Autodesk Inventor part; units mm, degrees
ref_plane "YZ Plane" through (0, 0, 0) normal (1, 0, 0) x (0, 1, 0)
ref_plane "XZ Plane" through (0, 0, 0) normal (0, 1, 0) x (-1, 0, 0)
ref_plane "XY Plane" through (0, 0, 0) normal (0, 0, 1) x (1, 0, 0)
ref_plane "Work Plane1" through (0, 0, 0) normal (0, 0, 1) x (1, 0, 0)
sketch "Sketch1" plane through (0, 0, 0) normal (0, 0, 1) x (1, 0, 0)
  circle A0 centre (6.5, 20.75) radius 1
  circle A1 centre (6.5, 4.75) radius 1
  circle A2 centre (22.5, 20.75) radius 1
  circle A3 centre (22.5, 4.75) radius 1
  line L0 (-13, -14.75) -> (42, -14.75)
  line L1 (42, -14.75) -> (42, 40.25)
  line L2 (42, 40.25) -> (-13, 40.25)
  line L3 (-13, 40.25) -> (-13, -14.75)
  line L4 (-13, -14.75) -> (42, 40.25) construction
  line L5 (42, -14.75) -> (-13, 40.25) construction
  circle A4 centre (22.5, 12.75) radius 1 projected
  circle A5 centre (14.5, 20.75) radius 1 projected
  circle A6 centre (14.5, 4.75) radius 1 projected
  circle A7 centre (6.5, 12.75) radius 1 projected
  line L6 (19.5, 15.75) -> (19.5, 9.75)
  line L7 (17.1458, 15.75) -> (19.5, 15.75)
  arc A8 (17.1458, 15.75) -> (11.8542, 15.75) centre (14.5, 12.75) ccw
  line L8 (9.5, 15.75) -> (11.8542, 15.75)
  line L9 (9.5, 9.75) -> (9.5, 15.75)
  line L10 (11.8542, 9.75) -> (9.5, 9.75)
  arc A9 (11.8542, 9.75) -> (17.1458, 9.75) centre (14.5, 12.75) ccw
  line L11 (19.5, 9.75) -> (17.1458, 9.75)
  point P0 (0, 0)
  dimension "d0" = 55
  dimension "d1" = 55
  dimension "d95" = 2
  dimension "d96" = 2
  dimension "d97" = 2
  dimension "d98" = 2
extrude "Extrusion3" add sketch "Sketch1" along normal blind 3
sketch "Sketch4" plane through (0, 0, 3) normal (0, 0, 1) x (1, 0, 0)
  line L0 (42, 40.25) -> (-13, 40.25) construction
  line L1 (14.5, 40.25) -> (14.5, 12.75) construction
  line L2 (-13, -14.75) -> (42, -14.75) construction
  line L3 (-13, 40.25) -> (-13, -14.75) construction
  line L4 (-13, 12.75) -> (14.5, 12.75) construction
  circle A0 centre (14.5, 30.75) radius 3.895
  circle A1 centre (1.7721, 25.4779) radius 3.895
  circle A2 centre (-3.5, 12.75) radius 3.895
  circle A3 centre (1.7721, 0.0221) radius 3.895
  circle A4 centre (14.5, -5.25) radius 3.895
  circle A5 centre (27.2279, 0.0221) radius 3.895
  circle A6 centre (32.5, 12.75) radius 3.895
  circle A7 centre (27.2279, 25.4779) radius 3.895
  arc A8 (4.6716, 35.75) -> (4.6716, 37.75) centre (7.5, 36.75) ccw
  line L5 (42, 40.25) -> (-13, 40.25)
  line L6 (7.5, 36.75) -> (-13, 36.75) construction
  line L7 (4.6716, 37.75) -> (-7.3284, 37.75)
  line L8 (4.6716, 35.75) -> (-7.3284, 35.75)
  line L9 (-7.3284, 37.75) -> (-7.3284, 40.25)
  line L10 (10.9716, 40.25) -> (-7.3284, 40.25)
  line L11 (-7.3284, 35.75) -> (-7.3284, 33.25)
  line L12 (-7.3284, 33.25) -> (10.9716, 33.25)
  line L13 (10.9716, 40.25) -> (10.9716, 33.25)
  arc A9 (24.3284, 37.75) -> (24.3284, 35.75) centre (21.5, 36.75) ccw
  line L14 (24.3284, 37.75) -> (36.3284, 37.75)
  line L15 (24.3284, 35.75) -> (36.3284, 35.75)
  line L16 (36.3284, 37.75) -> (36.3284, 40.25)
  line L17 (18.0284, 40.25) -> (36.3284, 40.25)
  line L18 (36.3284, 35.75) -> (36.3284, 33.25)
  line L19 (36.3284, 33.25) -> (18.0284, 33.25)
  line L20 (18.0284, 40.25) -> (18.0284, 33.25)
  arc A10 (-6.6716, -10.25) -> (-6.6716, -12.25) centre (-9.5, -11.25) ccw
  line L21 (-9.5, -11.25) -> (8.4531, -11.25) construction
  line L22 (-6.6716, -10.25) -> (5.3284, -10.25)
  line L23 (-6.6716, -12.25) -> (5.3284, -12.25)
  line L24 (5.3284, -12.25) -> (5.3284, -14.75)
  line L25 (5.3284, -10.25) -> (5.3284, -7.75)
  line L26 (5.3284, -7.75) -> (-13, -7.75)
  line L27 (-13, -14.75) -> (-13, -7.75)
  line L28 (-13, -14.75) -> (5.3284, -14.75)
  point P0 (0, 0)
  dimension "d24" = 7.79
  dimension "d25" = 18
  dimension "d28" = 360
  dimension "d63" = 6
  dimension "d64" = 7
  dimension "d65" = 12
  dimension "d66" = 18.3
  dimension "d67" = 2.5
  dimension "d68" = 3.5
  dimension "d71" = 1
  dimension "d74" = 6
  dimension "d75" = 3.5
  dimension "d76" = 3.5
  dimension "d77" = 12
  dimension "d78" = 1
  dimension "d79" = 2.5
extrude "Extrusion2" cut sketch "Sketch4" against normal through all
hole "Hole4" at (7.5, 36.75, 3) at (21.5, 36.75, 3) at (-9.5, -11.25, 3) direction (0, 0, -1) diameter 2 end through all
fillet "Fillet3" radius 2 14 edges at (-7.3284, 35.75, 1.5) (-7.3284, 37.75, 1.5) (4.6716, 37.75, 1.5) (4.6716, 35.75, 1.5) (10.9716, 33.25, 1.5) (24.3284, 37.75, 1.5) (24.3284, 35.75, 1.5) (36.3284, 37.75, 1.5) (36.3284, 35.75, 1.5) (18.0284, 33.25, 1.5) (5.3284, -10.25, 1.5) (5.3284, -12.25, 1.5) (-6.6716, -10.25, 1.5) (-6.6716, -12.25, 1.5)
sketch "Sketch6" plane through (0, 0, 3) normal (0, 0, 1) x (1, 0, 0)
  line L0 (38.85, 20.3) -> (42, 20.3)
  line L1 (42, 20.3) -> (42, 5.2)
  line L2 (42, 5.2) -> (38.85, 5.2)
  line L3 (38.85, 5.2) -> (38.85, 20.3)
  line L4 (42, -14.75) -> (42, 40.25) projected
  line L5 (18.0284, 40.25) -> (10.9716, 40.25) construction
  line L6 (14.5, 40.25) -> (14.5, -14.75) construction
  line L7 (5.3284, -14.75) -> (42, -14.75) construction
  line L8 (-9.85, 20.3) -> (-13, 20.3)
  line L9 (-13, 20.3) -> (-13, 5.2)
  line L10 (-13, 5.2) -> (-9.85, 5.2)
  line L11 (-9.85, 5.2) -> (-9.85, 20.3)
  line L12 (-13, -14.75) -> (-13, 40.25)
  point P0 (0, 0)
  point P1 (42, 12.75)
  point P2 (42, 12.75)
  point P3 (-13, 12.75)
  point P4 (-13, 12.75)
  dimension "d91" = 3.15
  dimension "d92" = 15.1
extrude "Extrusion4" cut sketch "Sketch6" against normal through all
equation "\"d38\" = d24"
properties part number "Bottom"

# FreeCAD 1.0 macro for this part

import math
import FreeCAD as App
import Part
import Sketcher

V = App.Vector


def edges_at(feature, points):
    """Names of the edges that pass closest to the given points."""
    edges = feature.Shape.Edges
    near = lambda p: min(range(len(edges)), key=lambda i: edges[i].distToShape(Part.Vertex(*p))[0])
    return sorted({f"Edge{near(p) + 1}" for p in points})

doc = App.newDocument("Part")
body = doc.addObject("PartDesign::Body", "Body")

sketch1 = body.newObject("Sketcher::SketchObject", "Sketch")
sketch1.AttachmentSupport = (doc.getObject("XY_Plane"), [""])
sketch1.MapMode = "FlatFace"
sketch1.addGeometry([
    Part.LineSegment(V(-13, 40.2, 0), V(-13, -14.8, 0)),
    Part.LineSegment(V(-13, -14.8, 0), V(42, -14.8, 0)),
    Part.LineSegment(V(42, -14.8, 0), V(42, 40.2, 0)),
    Part.LineSegment(V(42, 40.2, 0), V(-13, 40.2, 0)),
    Part.Circle(V(6.5, 4.8, 0), V(0, 0, 1), 1),
    Part.Circle(V(14.5, 4.8, 0), V(0, 0, 1), 1),
    Part.Circle(V(22.5, 4.8, 0), V(0, 0, 1), 1),
    Part.Circle(V(6.5, 12.8, 0), V(0, 0, 1), 1),
    Part.Circle(V(6.5, 20.8, 0), V(0, 0, 1), 1),
    Part.LineSegment(V(17.1, 15.8, 0), V(19.5, 15.8, 0)),
    Part.LineSegment(V(19.5, 15.8, 0), V(19.5, 9.8, 0)),
    Part.LineSegment(V(19.5, 9.8, 0), V(17.1, 9.8, 0)),
    Part.ArcOfCircle(Part.Circle(V(14.5, 12.8, 0), V(0, 0, 1), 4), math.radians(-131), math.radians(-49)),
    Part.LineSegment(V(11.9, 9.8, 0), V(9.5, 9.8, 0)),
    Part.LineSegment(V(9.5, 9.8, 0), V(9.5, 15.8, 0)),
    Part.LineSegment(V(9.5, 15.8, 0), V(11.9, 15.8, 0)),
    Part.ArcOfCircle(Part.Circle(V(14.5, 12.8, 0), V(0, 0, 1), 4), math.radians(49), math.radians(131)),
    Part.Circle(V(22.5, 12.8, 0), V(0, 0, 1), 1),
    Part.Circle(V(14.5, 20.8, 0), V(0, 0, 1), 1),
    Part.Circle(V(22.5, 20.8, 0), V(0, 0, 1), 1),
], False)
sketch1.addConstraint([
    Sketcher.Constraint("Coincident", 0, 2, 1, 1),
    Sketcher.Constraint("Coincident", 1, 2, 2, 1),
    Sketcher.Constraint("Coincident", 2, 2, 3, 1),
    Sketcher.Constraint("Coincident", 3, 2, 0, 1),
    Sketcher.Constraint("Coincident", 9, 2, 10, 1),
    Sketcher.Constraint("Coincident", 10, 2, 11, 1),
    Sketcher.Constraint("Coincident", 11, 2, 12, 2),
    Sketcher.Constraint("Coincident", 12, 1, 13, 1),
    Sketcher.Constraint("Coincident", 13, 2, 14, 1),
    Sketcher.Constraint("Coincident", 14, 2, 15, 1),
    Sketcher.Constraint("Coincident", 15, 2, 16, 2),
    Sketcher.Constraint("Coincident", 16, 1, 9, 1),
    Sketcher.Constraint("Vertical", 0),
    Sketcher.Constraint("Horizontal", 1),
    Sketcher.Constraint("Vertical", 2),
    Sketcher.Constraint("Horizontal", 3),
    Sketcher.Constraint("Horizontal", 9),
    Sketcher.Constraint("Vertical", 10),
    Sketcher.Constraint("Horizontal", 11),
    Sketcher.Constraint("Horizontal", 13),
    Sketcher.Constraint("Vertical", 14),
    Sketcher.Constraint("Horizontal", 15),
    Sketcher.Constraint("Coincident", 16, 3, 12, 3),
    Sketcher.Constraint("Equal", 4, 5),
    Sketcher.Constraint("Equal", 5, 6),
    Sketcher.Constraint("Equal", 6, 7),
    Sketcher.Constraint("Equal", 7, 8),
    Sketcher.Constraint("Equal", 12, 16),
    Sketcher.Constraint("Equal", 8, 17),
    Sketcher.Constraint("Equal", 17, 18),
    Sketcher.Constraint("Equal", 18, 19),
    Sketcher.Constraint("Horizontal", 4, 3, 5, 3),
    Sketcher.Constraint("Horizontal", 5, 3, 6, 3),
    Sketcher.Constraint("Horizontal", 7, 3, 12, 3),
    Sketcher.Constraint("Horizontal", 16, 3, 17, 3),
    Sketcher.Constraint("Horizontal", 8, 3, 18, 3),
    Sketcher.Constraint("Horizontal", 18, 3, 19, 3),
    Sketcher.Constraint("Horizontal", 11, 2, 12, 1),
    Sketcher.Constraint("Horizontal", 9, 2, 14, 2),
    Sketcher.Constraint("Vertical", 4, 3, 7, 3),
    Sketcher.Constraint("Vertical", 7, 3, 8, 3),
    Sketcher.Constraint("Vertical", 5, 3, 12, 3),
    Sketcher.Constraint("Vertical", 6, 3, 17, 3),
    Sketcher.Constraint("Vertical", 16, 3, 18, 3),
    Sketcher.Constraint("Vertical", 17, 3, 19, 3),
    Sketcher.Constraint("Vertical", 12, 1, 15, 2),
    Sketcher.Constraint("Equal", 11, 13),
    Sketcher.Constraint("Equal", 3, 0),
    Sketcher.Constraint("Diameter", 4, 2.0),
    Sketcher.Constraint("DistanceX", 1, 1, 1, 2, 55.0),
    Sketcher.Constraint("Radius", 12, 4.0),
    Sketcher.Constraint("DistanceY", 10, 2, 10, 1, 6.0),
    Sketcher.Constraint("DistanceX", 0, 2, -1, 1, 13.0),
    Sketcher.Constraint("DistanceX", 4, 3, 5, 3, 8.0),
    Sketcher.Constraint("DistanceX", 5, 3, 6, 3, 8.0),
    Sketcher.Constraint("DistanceY", 4, 3, 7, 3, 8.0),
    Sketcher.Constraint("DistanceY", 7, 3, 8, 3, 8.0),
    Sketcher.Constraint("DistanceX", 9, 2, 17, 3, 3.0),
    Sketcher.Constraint("DistanceX", -1, 1, 4, 3, 6.5),
    Sketcher.Constraint("DistanceY", 0, 2, 4, 3, 19.5),
    Sketcher.Constraint("DistanceY", -1, 1, 4, 3, 4.75),
])
pad1 = body.newObject("PartDesign::Pad", "Pad")
pad1.Profile = sketch1
pad1.Length = 3

sketch2 = body.newObject("Sketcher::SketchObject", "Sketch001")
sketch2.AttachmentSupport = (doc.getObject("XY_Plane"), [""])
sketch2.MapMode = "FlatFace"
sketch2.AttachmentOffset = App.Placement(V(0, 0, 3), App.Rotation())
sketch2.addGeometry([
    Part.Circle(V(14.5, 30.8, 0), V(0, 0, 1), 3.9),
    Part.Circle(V(1.8, 25.5, 0), V(0, 0, 1), 3.9),
    Part.Circle(V(-3.5, 12.8, 0), V(0, 0, 1), 3.9),
    Part.Circle(V(1.8, 0, 0), V(0, 0, 1), 3.9),
    Part.Circle(V(14.5, -5.2, 0), V(0, 0, 1), 3.9),
    Part.Circle(V(27.2, 0, 0), V(0, 0, 1), 3.9),
    Part.Circle(V(32.5, 12.8, 0), V(0, 0, 1), 3.9),
    Part.Circle(V(27.2, 25.5, 0), V(0, 0, 1), 3.9),
    Part.LineSegment(V(36.3, 40.2, 0), V(18, 40.2, 0)),
    Part.LineSegment(V(18, 40.2, 0), V(18, 33.2, 0)),
    Part.LineSegment(V(18, 33.2, 0), V(36.3, 33.2, 0)),
    Part.LineSegment(V(36.3, 33.2, 0), V(36.3, 35.8, 0)),
    Part.LineSegment(V(36.3, 35.8, 0), V(24.3, 35.8, 0)),
    Part.ArcOfCircle(Part.Circle(V(21.5, 36.8, 0), V(0, 0, 1), 3), math.radians(19), math.radians(341)),
    Part.LineSegment(V(24.3, 37.8, 0), V(36.3, 37.8, 0)),
    Part.LineSegment(V(36.3, 37.8, 0), V(36.3, 40.2, 0)),
    Part.ArcOfCircle(Part.Circle(V(7.5, 36.8, 0), V(0, 0, 1), 3), math.radians(-161), math.radians(161)),
    Part.LineSegment(V(4.7, 35.8, 0), V(-7.3, 35.8, 0)),
    Part.LineSegment(V(-7.3, 35.8, 0), V(-7.3, 33.2, 0)),
    Part.LineSegment(V(-7.3, 33.2, 0), V(11, 33.2, 0)),
    Part.LineSegment(V(11, 33.2, 0), V(11, 40.2, 0)),
    Part.LineSegment(V(11, 40.2, 0), V(-7.3, 40.2, 0)),
    Part.LineSegment(V(-7.3, 40.2, 0), V(-7.3, 37.8, 0)),
    Part.LineSegment(V(-7.3, 37.8, 0), V(4.7, 37.8, 0)),
    Part.ArcOfCircle(Part.Circle(V(-9.5, -11.2, 0), V(0, 0, 1), 3), math.radians(19), math.radians(341)),
    Part.LineSegment(V(-6.7, -10.2, 0), V(5.3, -10.2, 0)),
    Part.LineSegment(V(5.3, -10.2, 0), V(5.3, -7.8, 0)),
    Part.LineSegment(V(5.3, -7.8, 0), V(-13, -7.8, 0)),
    Part.LineSegment(V(-13, -7.8, 0), V(-13, -14.8, 0)),
    Part.LineSegment(V(-13, -14.8, 0), V(5.3, -14.8, 0)),
    Part.LineSegment(V(5.3, -14.8, 0), V(5.3, -12.2, 0)),
    Part.LineSegment(V(5.3, -12.2, 0), V(-6.7, -12.2, 0)),
], False)
sketch2.addConstraint([
    Sketcher.Constraint("Coincident", 8, 2, 9, 1),
    Sketcher.Constraint("Coincident", 9, 2, 10, 1),
    Sketcher.Constraint("Coincident", 10, 2, 11, 1),
    Sketcher.Constraint("Coincident", 11, 2, 12, 1),
    Sketcher.Constraint("Coincident", 12, 2, 13, 2),
    Sketcher.Constraint("Coincident", 13, 1, 14, 1),
    Sketcher.Constraint("Coincident", 14, 2, 15, 1),
    Sketcher.Constraint("Coincident", 15, 2, 8, 1),
    Sketcher.Constraint("Coincident", 16, 1, 17, 1),
    Sketcher.Constraint("Coincident", 17, 2, 18, 1),
    Sketcher.Constraint("Coincident", 18, 2, 19, 1),
    Sketcher.Constraint("Coincident", 19, 2, 20, 1),
    Sketcher.Constraint("Coincident", 20, 2, 21, 1),
    Sketcher.Constraint("Coincident", 21, 2, 22, 1),
    Sketcher.Constraint("Coincident", 22, 2, 23, 1),
    Sketcher.Constraint("Coincident", 23, 2, 16, 2),
    Sketcher.Constraint("Coincident", 24, 1, 25, 1),
    Sketcher.Constraint("Coincident", 25, 2, 26, 1),
    Sketcher.Constraint("Coincident", 26, 2, 27, 1),
    Sketcher.Constraint("Coincident", 27, 2, 28, 1),
    Sketcher.Constraint("Coincident", 28, 2, 29, 1),
    Sketcher.Constraint("Coincident", 29, 2, 30, 1),
    Sketcher.Constraint("Coincident", 30, 2, 31, 1),
    Sketcher.Constraint("Coincident", 31, 2, 24, 2),
    Sketcher.Constraint("Horizontal", 8),
    Sketcher.Constraint("Vertical", 9),
    Sketcher.Constraint("Horizontal", 10),
    Sketcher.Constraint("Vertical", 11),
    Sketcher.Constraint("Horizontal", 12),
    Sketcher.Constraint("Horizontal", 14),
    Sketcher.Constraint("Vertical", 15),
    Sketcher.Constraint("Horizontal", 17),
    Sketcher.Constraint("Vertical", 18),
    Sketcher.Constraint("Horizontal", 19),
    Sketcher.Constraint("Vertical", 20),
    Sketcher.Constraint("Horizontal", 21),
    Sketcher.Constraint("Vertical", 22),
    Sketcher.Constraint("Horizontal", 23),
    Sketcher.Constraint("Horizontal", 25),
    Sketcher.Constraint("Vertical", 26),
    Sketcher.Constraint("Horizontal", 27),
    Sketcher.Constraint("Vertical", 28),
    Sketcher.Constraint("Horizontal", 29),
    Sketcher.Constraint("Vertical", 30),
    Sketcher.Constraint("Horizontal", 31),
    Sketcher.Constraint("Equal", 0, 1),
    Sketcher.Constraint("Equal", 1, 2),
    Sketcher.Constraint("Equal", 2, 3),
    Sketcher.Constraint("Equal", 3, 4),
    Sketcher.Constraint("Equal", 4, 5),
    Sketcher.Constraint("Equal", 5, 6),
    Sketcher.Constraint("Equal", 6, 7),
    Sketcher.Constraint("Equal", 13, 16),
    Sketcher.Constraint("Equal", 16, 24),
    Sketcher.Constraint("Horizontal", 3, 3, 5, 3),
    Sketcher.Constraint("Horizontal", 2, 3, 6, 3),
    Sketcher.Constraint("Horizontal", 1, 3, 7, 3),
    Sketcher.Constraint("Horizontal", 13, 3, 16, 3),
    Sketcher.Constraint("Horizontal", 12, 2, 16, 1),
    Sketcher.Constraint("Horizontal", 10, 2, 18, 2),
    Sketcher.Constraint("Horizontal", 15, 2, 20, 2),
    Sketcher.Constraint("Horizontal", 14, 2, 22, 2),
    Sketcher.Constraint("Vertical", 1, 3, 3, 3),
    Sketcher.Constraint("Vertical", 0, 3, 4, 3),
    Sketcher.Constraint("Vertical", 5, 3, 7, 3),
    Sketcher.Constraint("Vertical", 12, 2, 13, 1),
    Sketcher.Constraint("Vertical", 11, 2, 14, 2),
    Sketcher.Constraint("Vertical", 18, 2, 21, 2),
    Sketcher.Constraint("Vertical", 26, 2, 29, 2),
    Sketcher.Constraint("Vertical", 24, 1, 31, 2),
    Sketcher.Constraint("Equal", 14, 17),
    Sketcher.Constraint("Equal", 10, 19),
    Sketcher.Constraint("Equal", 23, 25),
    Sketcher.Constraint("Equal", 11, 15),
    Sketcher.Constraint("Equal", 22, 26),
    Sketcher.Constraint("Equal", 20, 28),
    Sketcher.Constraint("Equal", 26, 30),
    Sketcher.Constraint("Radius", 13, 3.0),
    Sketcher.Constraint("Diameter", 0, 7.79),
    Sketcher.Constraint("DistanceX", 12, 2, 12, 1, 12.0),
    Sketcher.Constraint("DistanceY", 9, 2, 9, 1, 7.0),
    Sketcher.Constraint("DistanceX", 8, 2, 8, 1, 18.3),
    Sketcher.Constraint("DistanceY", 11, 1, 11, 2, 2.5),
    Sketcher.Constraint("DistanceX", 2, 3, 0, 3, 18.0),
    Sketcher.Constraint("DistanceY", 2, 3, 0, 3, 18.0),
    Sketcher.Constraint("DistanceY", 4, 3, 2, 3, 18.0),
    Sketcher.Constraint("DistanceX", 0, 3, 6, 3, 18.0),
    Sketcher.Constraint("DistanceX", 0, 3, 13, 3, 7.0),
    Sketcher.Constraint("DistanceY", 0, 3, 13, 3, 6.0),
    Sketcher.Constraint("DistanceX", 16, 3, 0, 3, 7.0),
    Sketcher.Constraint("DistanceX", 24, 3, 2, 3, 6.0),
    Sketcher.Constraint("DistanceY", 24, 3, 4, 3, 6.0),
    Sketcher.Constraint("DistanceX", 2, 3, -1, 1, 3.5),
    Sketcher.Constraint("DistanceX", 27, 2, 24, 3, 3.5),
    Sketcher.Constraint("DistanceY", -1, 1, 0, 3, 30.75),
    Sketcher.Constraint("DistanceX", -1, 1, 1, 3, 1.772),
    Sketcher.Constraint("DistanceY", -1, 1, 1, 3, 25.478),
    Sketcher.Constraint("DistanceY", -1, 1, 3, 3, 0.022),
    Sketcher.Constraint("DistanceX", -1, 1, 5, 3, 27.228),
])
pocket1 = body.newObject("PartDesign::Pocket", "Pocket")
pocket1.Profile = sketch2
pocket1.Type = "ThroughAll"

sketch3 = body.newObject("Sketcher::SketchObject", "Sketch002")
sketch3.AttachmentSupport = (doc.getObject("XY_Plane"), [""])
sketch3.MapMode = "FlatFace"
sketch3.AttachmentOffset = App.Placement(V(0, 0, 3), App.Rotation())
sketch3.addGeometry([
    Part.Circle(V(7.5, 36.8, 0), V(0, 0, 1), 1),
    Part.Circle(V(21.5, 36.8, 0), V(0, 0, 1), 1),
    Part.Circle(V(-9.5, -11.2, 0), V(0, 0, 1), 1),
], False)
sketch3.addConstraint([
    Sketcher.Constraint("Equal", 0, 1),
    Sketcher.Constraint("Equal", 1, 2),
    Sketcher.Constraint("Horizontal", 0, 3, 1, 3),
    Sketcher.Constraint("Diameter", 0, 2.0),
    Sketcher.Constraint("DistanceX", 0, 3, 1, 3, 14.0),
    Sketcher.Constraint("DistanceX", 2, 3, 0, 3, 17.0),
    Sketcher.Constraint("DistanceY", 2, 3, 0, 3, 48.0),
    Sketcher.Constraint("DistanceX", -1, 1, 0, 3, 7.5),
    Sketcher.Constraint("DistanceY", -1, 1, 0, 3, 36.75),
])
doc.recompute()
hole = body.newObject("PartDesign::Hole", "Hole")
hole.Profile = sketch3
hole.ThreadType = "None"
hole.Diameter = 2
hole.DepthType = "ThroughAll"
doc.recompute()

fillet = body.newObject("PartDesign::Fillet", "Fillet")
fillet.Base = (hole, edges_at(hole, [
    (-7.328, 35.75, 1.5),
    (-7.328, 37.75, 1.5),
    (4.672, 37.75, 1.5),
    (4.672, 35.75, 1.5),
    (10.972, 33.25, 1.5),
    (24.328, 37.75, 1.5),
    (24.328, 35.75, 1.5),
    (36.328, 37.75, 1.5),
    (36.328, 35.75, 1.5),
    (18.028, 33.25, 1.5),
    (5.328, -10.25, 1.5),
    (5.328, -12.25, 1.5),
    (-6.672, -10.25, 1.5),
    (-6.672, -12.25, 1.5),
]))
fillet.Radius = 2

sketch4 = body.newObject("Sketcher::SketchObject", "Sketch003")
sketch4.AttachmentSupport = (doc.getObject("XY_Plane"), [""])
sketch4.MapMode = "FlatFace"
sketch4.AttachmentOffset = App.Placement(V(0, 0, 3), App.Rotation())
sketch4.addGeometry([
    Part.LineSegment(V(42, 20.3, 0), V(38.9, 20.3, 0)),
    Part.LineSegment(V(38.9, 20.3, 0), V(38.9, 5.2, 0)),
    Part.LineSegment(V(38.9, 5.2, 0), V(42, 5.2, 0)),
    Part.LineSegment(V(42, 5.2, 0), V(42, 20.3, 0)),
    Part.LineSegment(V(-9.8, 5.2, 0), V(-9.8, 20.3, 0)),
    Part.LineSegment(V(-9.8, 20.3, 0), V(-13, 20.3, 0)),
    Part.LineSegment(V(-13, 20.3, 0), V(-13, 5.2, 0)),
    Part.LineSegment(V(-13, 5.2, 0), V(-9.8, 5.2, 0)),
], False)
sketch4.addConstraint([
    Sketcher.Constraint("Coincident", 0, 2, 1, 1),
    Sketcher.Constraint("Coincident", 1, 2, 2, 1),
    Sketcher.Constraint("Coincident", 2, 2, 3, 1),
    Sketcher.Constraint("Coincident", 3, 2, 0, 1),
    Sketcher.Constraint("Coincident", 4, 2, 5, 1),
    Sketcher.Constraint("Coincident", 5, 2, 6, 1),
    Sketcher.Constraint("Coincident", 6, 2, 7, 1),
    Sketcher.Constraint("Coincident", 7, 2, 4, 1),
    Sketcher.Constraint("Horizontal", 0),
    Sketcher.Constraint("Vertical", 1),
    Sketcher.Constraint("Horizontal", 2),
    Sketcher.Constraint("Vertical", 3),
    Sketcher.Constraint("Vertical", 4),
    Sketcher.Constraint("Horizontal", 5),
    Sketcher.Constraint("Vertical", 6),
    Sketcher.Constraint("Horizontal", 7),
    Sketcher.Constraint("Horizontal", 3, 2, 4, 2),
    Sketcher.Constraint("Horizontal", 2, 2, 6, 2),
    Sketcher.Constraint("Equal", 2, 5),
    Sketcher.Constraint("DistanceY", 1, 2, 1, 1, 15.1),
    Sketcher.Constraint("DistanceX", 0, 2, 0, 1, 3.15),
    Sketcher.Constraint("DistanceX", -1, 1, 2, 2, 42.0),
    Sketcher.Constraint("DistanceX", 5, 2, -1, 1, 13.0),
    Sketcher.Constraint("DistanceY", -1, 1, 0, 2, 20.3),
])
pocket2 = body.newObject("PartDesign::Pocket", "Pocket001")
pocket2.Profile = sketch4
pocket2.Type = "ThroughAll"

doc.recompute()
